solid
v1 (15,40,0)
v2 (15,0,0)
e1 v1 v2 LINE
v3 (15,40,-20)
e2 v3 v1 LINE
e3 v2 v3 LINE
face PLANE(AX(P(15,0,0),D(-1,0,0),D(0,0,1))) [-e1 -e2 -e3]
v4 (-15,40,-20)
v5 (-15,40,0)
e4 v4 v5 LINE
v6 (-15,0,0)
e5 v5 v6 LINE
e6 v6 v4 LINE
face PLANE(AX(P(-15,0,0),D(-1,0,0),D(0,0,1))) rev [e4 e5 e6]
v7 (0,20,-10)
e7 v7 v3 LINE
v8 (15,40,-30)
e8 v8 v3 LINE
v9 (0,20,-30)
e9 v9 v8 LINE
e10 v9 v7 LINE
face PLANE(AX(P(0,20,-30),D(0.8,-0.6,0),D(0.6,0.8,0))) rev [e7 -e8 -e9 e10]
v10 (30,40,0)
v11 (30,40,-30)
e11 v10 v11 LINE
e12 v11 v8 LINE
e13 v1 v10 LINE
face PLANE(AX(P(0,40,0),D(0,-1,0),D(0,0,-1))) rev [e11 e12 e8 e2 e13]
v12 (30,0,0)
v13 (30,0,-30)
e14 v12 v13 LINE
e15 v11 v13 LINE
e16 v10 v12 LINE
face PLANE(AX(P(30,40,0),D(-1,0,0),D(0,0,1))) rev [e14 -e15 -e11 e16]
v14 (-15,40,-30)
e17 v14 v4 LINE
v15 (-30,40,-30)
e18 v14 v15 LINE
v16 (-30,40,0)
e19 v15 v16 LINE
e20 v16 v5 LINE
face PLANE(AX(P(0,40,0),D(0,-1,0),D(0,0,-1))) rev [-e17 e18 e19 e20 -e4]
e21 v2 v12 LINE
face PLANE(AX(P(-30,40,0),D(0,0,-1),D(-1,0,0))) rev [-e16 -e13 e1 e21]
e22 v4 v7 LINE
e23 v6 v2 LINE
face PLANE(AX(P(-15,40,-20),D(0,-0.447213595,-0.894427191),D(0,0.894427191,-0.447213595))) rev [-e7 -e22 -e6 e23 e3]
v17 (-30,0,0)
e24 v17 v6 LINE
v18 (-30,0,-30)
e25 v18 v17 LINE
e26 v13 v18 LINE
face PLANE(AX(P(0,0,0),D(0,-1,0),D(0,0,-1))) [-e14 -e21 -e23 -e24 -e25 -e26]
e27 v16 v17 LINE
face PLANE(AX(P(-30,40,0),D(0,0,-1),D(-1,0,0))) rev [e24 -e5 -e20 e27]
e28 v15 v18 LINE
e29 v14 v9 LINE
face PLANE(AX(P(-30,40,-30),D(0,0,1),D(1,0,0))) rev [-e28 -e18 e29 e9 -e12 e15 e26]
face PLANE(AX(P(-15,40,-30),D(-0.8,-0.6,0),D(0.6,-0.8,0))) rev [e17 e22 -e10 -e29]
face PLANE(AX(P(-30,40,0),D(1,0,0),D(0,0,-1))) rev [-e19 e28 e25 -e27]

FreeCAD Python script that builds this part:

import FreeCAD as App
import Part
import Sketcher
from FreeCAD import Vector
Q = App.Units.Quantity

doc = App.newDocument("Part")
params = doc.addObject("Spreadsheet::Sheet", "Params")
for row, (alias, value) in enumerate([
    ("sketch1_width", "60 mm"),
    ("sketch1_height", "30 mm"),
    ("pad1_length", "40 mm"),
    ("sketch2_width", "30 mm"),
    ("sketch2_length", "25 mm"),
    ("sketch3_width", "40 mm"),
    ("sketch3_height", "20 mm"),
    ("pocket2_length", "30 mm"),
], start=1):
    params.set(f"A{row}", alias)
    params.set(f"B{row}", "=" + value)
    params.setAlias(f"B{row}", alias)

body = doc.addObject("PartDesign::Body", "Body")

# Sketch on XZ plane
sketch1 = body.newObject("Sketcher::SketchObject", "Sketch")
sketch1.AttachmentSupport = (doc.getObject("XZ_Plane"), [""])
sketch1.MapMode = "FlatFace"
sketch1.addGeometry([
    Part.LineSegment(Vector(-30, -30, 0), Vector(-30, 0, 0)),
    Part.LineSegment(Vector(-30, 0, 0), Vector(30, 0, 0)),
    Part.LineSegment(Vector(30, 0, 0), Vector(30, -30, 0)),
    Part.LineSegment(Vector(30, -30, 0), Vector(-30, -30, 0)),
], False)
sketch1.addConstraint([
    Sketcher.Constraint("Coincident", 0, 2, 1, 1),
    Sketcher.Constraint("Coincident", 1, 2, 2, 1),
    Sketcher.Constraint("Coincident", 2, 2, 3, 1),
    Sketcher.Constraint("Coincident", 3, 2, 0, 1),
    Sketcher.Constraint("Vertical", 0),
    Sketcher.Constraint("Horizontal", 1),
    Sketcher.Constraint("Vertical", 2),
    Sketcher.Constraint("Horizontal", 3),
    Sketcher.Constraint("Symmetric", 0, 2, 1, 2, -1, 1),
    Sketcher.Constraint("DistanceX", 1, 1, 1, 2, Q("60 mm")),
    Sketcher.Constraint("DistanceY", 0, 1, 0, 2, Q("30 mm")),
])
sketch1.setExpression("Constraints[9]", "Params.sketch1_width")
sketch1.setExpression("Constraints[10]", "Params.sketch1_height")
pad1 = body.newObject("PartDesign::Pad", "Pad")
pad1.Profile = sketch1
pad1.setExpression("Length", "Params.pad1_length")
pad1.Reversed = True

# Sketch on XY plane
sketch2 = body.newObject("Sketcher::SketchObject", "Sketch001")
sketch2.AttachmentSupport = (doc.getObject("XY_Plane"), [""])
sketch2.MapMode = "FlatFace"
sketch2.addGeometry([
    Part.LineSegment(Vector(-15, 40, 0), Vector(0, 20, 0)),
    Part.LineSegment(Vector(0, 20, 0), Vector(15, 40, 0)),
    Part.LineSegment(Vector(15, 40, 0), Vector(-15, 40, 0)),
], False)
sketch2.addConstraint([
    Sketcher.Constraint("Coincident", 0, 2, 1, 1),
    Sketcher.Constraint("Coincident", 1, 2, 2, 1),
    Sketcher.Constraint("Coincident", 2, 2, 0, 1),
    Sketcher.Constraint("Horizontal", 2),
    Sketcher.Constraint("PointOnObject", 0, 2, -2),
    Sketcher.Constraint("Equal", 0, 1),
    Sketcher.Constraint("DistanceX", 2, 2, 2, 1, Q("30 mm")),
    Sketcher.Constraint("Distance", 0, Q("25 mm")),
    Sketcher.Constraint("DistanceY", -1, 1, 0, 2, Q("20 mm")),
])
sketch2.setExpression("Constraints[6]", "Params.sketch2_width")
sketch2.setExpression("Constraints[7]", "Params.sketch2_length")
pocket1 = body.newObject("PartDesign::Pocket", "Pocket")
pocket1.Profile = sketch2
pocket1.Type = "ThroughAll"

# Sketch on YZ plane
sketch3 = body.newObject("Sketcher::SketchObject", "Sketch002")
sketch3.AttachmentSupport = (doc.getObject("YZ_Plane"), [""])
sketch3.MapMode = "FlatFace"
sketch3.addGeometry([
    Part.LineSegment(Vector(40, -20, 0), Vector(40, 0, 0)),
    Part.LineSegment(Vector(40, 0, 0), Vector(0, 0, 0)),
    Part.LineSegment(Vector(0, 0, 0), Vector(40, -20, 0)),
], False)
sketch3.addConstraint([
    Sketcher.Constraint("Coincident", 0, 2, 1, 1),
    Sketcher.Constraint("Coincident", 1, 2, 2, 1),
    Sketcher.Constraint("Coincident", 2, 2, 0, 1),
    Sketcher.Constraint("Vertical", 0),
    Sketcher.Constraint("Horizontal", 1),
    Sketcher.Constraint("Coincident", 1, 2, -1, 1),
    Sketcher.Constraint("DistanceX", 1, 2, 1, 1, Q("40 mm")),
    Sketcher.Constraint("DistanceY", 0, 1, 0, 2, Q("20 mm")),
])
sketch3.setExpression("Constraints[6]", "Params.sketch3_width")
sketch3.setExpression("Constraints[7]", "Params.sketch3_height")
pocket2 = body.newObject("PartDesign::Pocket", "Pocket001")
pocket2.Profile = sketch3
pocket2.setExpression("Length", "Params.pocket2_length")
pocket2.Midplane = True

doc.recompute()
